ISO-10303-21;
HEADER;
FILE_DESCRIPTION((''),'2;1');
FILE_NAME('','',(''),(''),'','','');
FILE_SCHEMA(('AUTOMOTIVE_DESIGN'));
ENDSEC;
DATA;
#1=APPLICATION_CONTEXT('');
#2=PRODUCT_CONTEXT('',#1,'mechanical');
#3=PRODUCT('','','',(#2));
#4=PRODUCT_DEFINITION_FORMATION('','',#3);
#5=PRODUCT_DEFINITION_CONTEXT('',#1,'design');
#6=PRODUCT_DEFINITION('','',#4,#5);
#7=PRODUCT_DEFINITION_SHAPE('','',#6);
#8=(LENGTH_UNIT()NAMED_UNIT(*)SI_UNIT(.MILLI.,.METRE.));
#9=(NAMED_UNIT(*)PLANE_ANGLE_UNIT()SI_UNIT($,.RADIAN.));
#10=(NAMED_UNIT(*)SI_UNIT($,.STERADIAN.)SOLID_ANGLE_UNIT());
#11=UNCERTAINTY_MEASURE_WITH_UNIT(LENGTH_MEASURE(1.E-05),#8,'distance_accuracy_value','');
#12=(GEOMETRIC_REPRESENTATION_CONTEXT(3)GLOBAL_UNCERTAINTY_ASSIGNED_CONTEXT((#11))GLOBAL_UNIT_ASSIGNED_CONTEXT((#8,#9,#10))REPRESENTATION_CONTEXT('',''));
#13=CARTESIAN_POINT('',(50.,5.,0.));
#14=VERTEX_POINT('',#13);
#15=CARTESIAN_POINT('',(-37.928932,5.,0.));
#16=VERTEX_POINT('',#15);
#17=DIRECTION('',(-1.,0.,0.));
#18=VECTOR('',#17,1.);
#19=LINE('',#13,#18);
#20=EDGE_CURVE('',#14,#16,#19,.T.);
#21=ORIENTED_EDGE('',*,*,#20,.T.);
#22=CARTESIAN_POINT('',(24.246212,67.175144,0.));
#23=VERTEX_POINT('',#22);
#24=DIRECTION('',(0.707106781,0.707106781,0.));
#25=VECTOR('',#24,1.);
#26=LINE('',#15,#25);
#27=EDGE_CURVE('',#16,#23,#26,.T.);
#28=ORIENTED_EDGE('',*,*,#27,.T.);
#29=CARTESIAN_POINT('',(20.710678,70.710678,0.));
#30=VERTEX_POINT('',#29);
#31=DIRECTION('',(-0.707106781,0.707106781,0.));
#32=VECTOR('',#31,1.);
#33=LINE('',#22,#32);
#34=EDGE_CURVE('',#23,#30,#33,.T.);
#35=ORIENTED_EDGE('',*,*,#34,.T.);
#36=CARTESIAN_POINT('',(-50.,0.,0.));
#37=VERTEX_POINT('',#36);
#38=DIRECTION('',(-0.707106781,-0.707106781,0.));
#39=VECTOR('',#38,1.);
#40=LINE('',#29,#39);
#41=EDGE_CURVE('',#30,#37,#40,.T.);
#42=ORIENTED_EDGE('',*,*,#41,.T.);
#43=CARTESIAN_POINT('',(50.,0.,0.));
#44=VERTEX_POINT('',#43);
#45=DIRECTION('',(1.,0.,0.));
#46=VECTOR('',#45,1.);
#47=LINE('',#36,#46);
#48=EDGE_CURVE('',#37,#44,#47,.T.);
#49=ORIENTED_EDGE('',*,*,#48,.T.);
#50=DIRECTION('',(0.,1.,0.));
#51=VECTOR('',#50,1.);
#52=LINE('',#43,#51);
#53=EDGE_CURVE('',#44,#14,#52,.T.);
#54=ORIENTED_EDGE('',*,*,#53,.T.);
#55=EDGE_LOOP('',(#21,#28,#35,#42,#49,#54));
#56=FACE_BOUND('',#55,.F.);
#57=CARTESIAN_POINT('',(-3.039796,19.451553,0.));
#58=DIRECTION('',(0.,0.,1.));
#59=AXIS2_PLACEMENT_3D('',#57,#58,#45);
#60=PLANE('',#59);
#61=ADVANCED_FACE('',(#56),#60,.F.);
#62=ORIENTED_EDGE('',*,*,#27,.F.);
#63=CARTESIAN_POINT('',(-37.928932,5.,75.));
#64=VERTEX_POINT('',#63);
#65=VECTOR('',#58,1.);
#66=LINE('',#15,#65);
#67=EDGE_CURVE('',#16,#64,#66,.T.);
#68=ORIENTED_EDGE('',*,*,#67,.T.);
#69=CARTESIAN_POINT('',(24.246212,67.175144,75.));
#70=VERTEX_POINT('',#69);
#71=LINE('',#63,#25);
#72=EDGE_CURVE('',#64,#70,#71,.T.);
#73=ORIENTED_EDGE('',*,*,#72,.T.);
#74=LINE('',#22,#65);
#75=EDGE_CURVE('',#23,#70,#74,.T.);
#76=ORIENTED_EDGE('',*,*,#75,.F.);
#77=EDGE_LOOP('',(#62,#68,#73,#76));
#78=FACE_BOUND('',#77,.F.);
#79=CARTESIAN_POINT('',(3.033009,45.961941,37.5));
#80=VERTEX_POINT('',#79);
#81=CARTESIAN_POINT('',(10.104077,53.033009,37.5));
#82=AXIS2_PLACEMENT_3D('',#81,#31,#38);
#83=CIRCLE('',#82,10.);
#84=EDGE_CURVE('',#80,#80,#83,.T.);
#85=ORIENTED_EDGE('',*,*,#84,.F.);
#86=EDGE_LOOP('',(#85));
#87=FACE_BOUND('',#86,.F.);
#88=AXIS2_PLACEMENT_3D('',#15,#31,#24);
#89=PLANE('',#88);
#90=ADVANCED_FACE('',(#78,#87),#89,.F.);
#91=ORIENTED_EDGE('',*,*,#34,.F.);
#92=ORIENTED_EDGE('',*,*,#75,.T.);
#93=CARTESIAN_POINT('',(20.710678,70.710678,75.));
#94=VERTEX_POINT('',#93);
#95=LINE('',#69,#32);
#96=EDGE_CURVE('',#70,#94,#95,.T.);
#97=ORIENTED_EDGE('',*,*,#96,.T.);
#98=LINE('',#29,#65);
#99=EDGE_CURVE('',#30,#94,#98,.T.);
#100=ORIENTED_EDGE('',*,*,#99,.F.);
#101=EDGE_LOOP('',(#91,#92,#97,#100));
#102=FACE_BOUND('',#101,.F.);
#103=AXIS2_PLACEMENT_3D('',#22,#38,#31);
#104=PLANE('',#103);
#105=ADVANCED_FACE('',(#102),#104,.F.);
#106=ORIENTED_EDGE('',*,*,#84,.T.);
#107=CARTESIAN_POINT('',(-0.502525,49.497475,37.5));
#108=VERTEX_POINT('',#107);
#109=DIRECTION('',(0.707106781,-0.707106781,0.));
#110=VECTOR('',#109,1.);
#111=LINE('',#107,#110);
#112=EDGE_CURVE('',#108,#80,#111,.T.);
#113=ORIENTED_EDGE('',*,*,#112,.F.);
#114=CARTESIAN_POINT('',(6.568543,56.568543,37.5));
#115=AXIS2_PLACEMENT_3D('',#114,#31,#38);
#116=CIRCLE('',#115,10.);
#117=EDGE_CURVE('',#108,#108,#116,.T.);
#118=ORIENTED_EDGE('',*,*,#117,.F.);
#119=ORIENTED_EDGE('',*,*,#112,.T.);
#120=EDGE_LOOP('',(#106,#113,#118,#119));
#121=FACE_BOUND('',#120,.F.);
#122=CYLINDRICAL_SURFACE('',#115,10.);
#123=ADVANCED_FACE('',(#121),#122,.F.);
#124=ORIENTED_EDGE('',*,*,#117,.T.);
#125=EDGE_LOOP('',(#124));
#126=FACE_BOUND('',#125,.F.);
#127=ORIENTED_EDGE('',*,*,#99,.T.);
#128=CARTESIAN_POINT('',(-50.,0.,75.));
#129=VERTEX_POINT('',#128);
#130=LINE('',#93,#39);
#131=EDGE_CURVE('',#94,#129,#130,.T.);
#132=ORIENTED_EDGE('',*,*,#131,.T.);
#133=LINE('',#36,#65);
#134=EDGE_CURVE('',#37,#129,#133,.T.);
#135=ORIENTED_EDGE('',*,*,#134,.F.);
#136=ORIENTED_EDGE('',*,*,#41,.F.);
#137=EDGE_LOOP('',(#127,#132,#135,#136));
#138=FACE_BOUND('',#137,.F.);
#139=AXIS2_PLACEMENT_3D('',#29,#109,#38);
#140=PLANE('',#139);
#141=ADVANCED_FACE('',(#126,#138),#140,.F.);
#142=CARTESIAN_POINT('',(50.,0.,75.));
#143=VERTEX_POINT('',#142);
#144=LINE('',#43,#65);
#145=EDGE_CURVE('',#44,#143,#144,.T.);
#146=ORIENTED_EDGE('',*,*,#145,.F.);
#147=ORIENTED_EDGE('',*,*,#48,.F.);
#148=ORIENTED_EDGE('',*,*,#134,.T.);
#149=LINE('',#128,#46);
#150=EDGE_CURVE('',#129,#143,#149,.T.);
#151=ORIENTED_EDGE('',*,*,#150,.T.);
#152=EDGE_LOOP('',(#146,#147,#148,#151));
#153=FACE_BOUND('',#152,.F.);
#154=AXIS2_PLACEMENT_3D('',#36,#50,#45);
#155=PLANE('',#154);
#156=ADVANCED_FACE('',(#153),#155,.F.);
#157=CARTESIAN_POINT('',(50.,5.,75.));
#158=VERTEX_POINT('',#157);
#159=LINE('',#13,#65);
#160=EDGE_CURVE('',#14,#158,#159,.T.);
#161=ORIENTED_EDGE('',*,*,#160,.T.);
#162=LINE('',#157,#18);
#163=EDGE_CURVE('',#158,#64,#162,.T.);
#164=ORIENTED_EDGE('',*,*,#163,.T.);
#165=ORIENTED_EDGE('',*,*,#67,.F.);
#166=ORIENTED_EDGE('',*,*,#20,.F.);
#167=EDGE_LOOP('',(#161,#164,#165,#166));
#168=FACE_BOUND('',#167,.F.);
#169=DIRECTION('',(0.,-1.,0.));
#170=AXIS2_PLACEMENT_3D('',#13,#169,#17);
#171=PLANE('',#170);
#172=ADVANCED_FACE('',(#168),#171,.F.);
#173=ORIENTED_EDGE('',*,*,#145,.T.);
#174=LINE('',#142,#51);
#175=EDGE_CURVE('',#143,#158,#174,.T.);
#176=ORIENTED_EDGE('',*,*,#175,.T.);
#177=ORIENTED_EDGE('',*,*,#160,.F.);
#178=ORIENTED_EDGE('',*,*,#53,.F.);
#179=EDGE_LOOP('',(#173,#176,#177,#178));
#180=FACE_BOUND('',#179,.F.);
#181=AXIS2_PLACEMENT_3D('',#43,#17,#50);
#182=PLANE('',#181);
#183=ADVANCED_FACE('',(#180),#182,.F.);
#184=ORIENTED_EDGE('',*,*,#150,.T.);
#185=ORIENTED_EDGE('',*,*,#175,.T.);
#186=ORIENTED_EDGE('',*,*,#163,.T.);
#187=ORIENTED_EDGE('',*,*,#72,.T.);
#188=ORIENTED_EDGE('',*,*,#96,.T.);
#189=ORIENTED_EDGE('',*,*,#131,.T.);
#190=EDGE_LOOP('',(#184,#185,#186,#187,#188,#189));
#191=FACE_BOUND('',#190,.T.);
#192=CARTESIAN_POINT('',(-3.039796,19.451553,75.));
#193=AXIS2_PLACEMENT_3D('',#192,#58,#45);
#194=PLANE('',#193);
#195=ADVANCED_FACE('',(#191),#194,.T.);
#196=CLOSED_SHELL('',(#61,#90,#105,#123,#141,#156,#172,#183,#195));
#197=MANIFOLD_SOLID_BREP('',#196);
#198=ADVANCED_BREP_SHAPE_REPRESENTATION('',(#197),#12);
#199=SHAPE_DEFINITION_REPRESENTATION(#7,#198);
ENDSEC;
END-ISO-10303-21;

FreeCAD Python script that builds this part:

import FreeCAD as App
import Part
import Sketcher
from FreeCAD import Vector
Q = App.Units.Quantity


def add_polygon(sketch, points):
    """Adds a closed chain of lines whose ends are joined by coincident constraints."""
    first, n = sketch.GeometryCount, len(points)
    for a, b in zip(points, points[1:] + points[:1]):
        sketch.addGeometry(Part.LineSegment(App.Vector(*a, 0), App.Vector(*b, 0)), False)
    for i in range(n):
        sketch.addConstraint(Sketcher.Constraint("Coincident", first + i, 2, first + (i + 1) % n, 1))

doc = App.newDocument("Part")
body = doc.addObject("PartDesign::Body", "Body")

sketch1 = body.newObject("Sketcher::SketchObject", "Sketch")
sketch1.AttachmentSupport = (doc.getObject("XY_Plane"), [""])
sketch1.MapMode = "FlatFace"
add_polygon(sketch1, [(-50, 0), (50, 0), (50, 5), (-38, 5), (24, 67), (21, 71)])
sketch1.addConstraint([
    Sketcher.Constraint("Horizontal", 0),
    Sketcher.Constraint("Vertical", 1),
    Sketcher.Constraint("Horizontal", 2),
    Sketcher.Constraint("Symmetric", 0, 2, 5, 2, -1, 1),
    Sketcher.Constraint("Perpendicular", 3, 4),
    Sketcher.Constraint("Perpendicular", 4, 5),
    Sketcher.Constraint("DistanceX", 0, 1, 0, 2, Q("100 mm")),
    Sketcher.Constraint("DistanceY", 1, 1, 1, 2, Q("5 mm")),
    Sketcher.Constraint("Angle", 3, Q("45 deg")),
    Sketcher.Constraint("Distance", 4, Q("5 mm")),
    Sketcher.Constraint("Distance", 5, Q("100 mm")),
])
pad1 = body.newObject("PartDesign::Pad", "Pad")
pad1.Profile = sketch1
pad1.Length = 75

sketch2 = body.newObject("Sketcher::SketchObject", "Sketch001")
sketch2.Placement = App.Placement(Vector(-25, 25, 0), App.Rotation(Vector(-0.707106781, -0.707106781, 0), Vector(0, 0, 0.999999999), Vector(-0.707106781, 0.707106781, 0), "ZXY"))
sketch2.addGeometry(Part.Circle(Vector(-45, 37, 0), Vector(0, 0, 1), 10), False)
sketch2.addConstraint([
    Sketcher.Constraint("Diameter", 0, Q("20 mm")),
    Sketcher.Constraint("DistanceY", -1, 1, 0, 3, Q("37.5 mm")),
    Sketcher.Constraint("DistanceX", 0, 3, -1, 1, Q("44.644661 mm")),
])
pocket1 = body.newObject("PartDesign::Pocket", "Pocket")
pocket1.Profile = sketch2
pocket1.Length = 25

doc.recompute()
